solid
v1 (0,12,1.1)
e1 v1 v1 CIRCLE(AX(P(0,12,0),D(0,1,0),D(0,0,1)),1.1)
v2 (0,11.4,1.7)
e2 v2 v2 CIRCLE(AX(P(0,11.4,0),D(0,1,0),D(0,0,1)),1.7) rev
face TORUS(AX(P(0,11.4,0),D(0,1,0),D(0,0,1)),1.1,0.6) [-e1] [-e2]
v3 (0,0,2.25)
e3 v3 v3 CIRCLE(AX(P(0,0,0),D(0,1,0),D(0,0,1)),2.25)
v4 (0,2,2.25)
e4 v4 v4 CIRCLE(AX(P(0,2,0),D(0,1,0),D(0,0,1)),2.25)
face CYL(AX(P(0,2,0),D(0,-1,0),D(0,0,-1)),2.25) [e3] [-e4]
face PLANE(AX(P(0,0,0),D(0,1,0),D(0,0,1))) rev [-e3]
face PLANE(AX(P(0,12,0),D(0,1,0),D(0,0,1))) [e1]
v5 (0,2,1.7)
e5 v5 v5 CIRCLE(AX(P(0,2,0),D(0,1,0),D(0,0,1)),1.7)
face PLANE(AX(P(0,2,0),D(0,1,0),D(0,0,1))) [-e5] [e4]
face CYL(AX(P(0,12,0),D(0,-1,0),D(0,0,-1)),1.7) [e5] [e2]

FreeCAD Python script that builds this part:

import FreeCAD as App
import Part
import Sketcher
from FreeCAD import Vector
Q = App.Units.Quantity


def edges_at(feature, points):
    """Names of the edges that pass closest to the given points."""
    edges = feature.Shape.Edges
    near = lambda p: min(range(len(edges)), key=lambda i: edges[i].distToShape(Part.Vertex(*p))[0])
    return sorted({f"Edge{near(p) + 1}" for p in points})

doc = App.newDocument("Part")
params = doc.addObject("Spreadsheet::Sheet", "Params")
for row, (alias, value) in enumerate([
    ("sketch1_diameter", "4.5 mm"),
    ("pad1_length", "2 mm"),
    ("sketch2_diameter", "3.4 mm"),
    ("pad2_length", "10 mm"),
    ("fillet_radius", "0.6 mm"),
], start=1):
    params.set(f"A{row}", alias)
    params.set(f"B{row}", "=" + value)
    params.setAlias(f"B{row}", alias)

body = doc.addObject("PartDesign::Body", "Body")

sketch1 = doc.addObject("Sketcher::SketchObject", "Sketch")
body.addObject(sketch1)
sketch1.AttachmentSupport = (doc.XZ_Plane, [""])
sketch1.MapMode = "FlatFace"
sketch1.addGeometry(Part.Circle(Vector(0, 0, 0), Vector(0, 0, 1), 2.25), False)
sketch1.addConstraint([
    Sketcher.Constraint("Coincident", 0, 3, -1, 1),
    Sketcher.Constraint("Diameter", 0, Q("4.5 mm")),
])
sketch1.setExpression("Constraints[1]", "Params.sketch1_diameter")
pad1 = doc.addObject("PartDesign::Pad", "Pad")
body.addObject(pad1)
pad1.Profile = sketch1
pad1.setExpression("Length", "Params.pad1_length")
pad1.Reversed = True

sketch2 = doc.addObject("Sketcher::SketchObject", "Sketch001")
body.addObject(sketch2)
sketch2.AttachmentSupport = (doc.XZ_Plane, [""])
sketch2.MapMode = "FlatFace"
sketch2.AttachmentOffset = App.Placement(Vector(0, 0, -2), App.Rotation())
sketch2.addGeometry(Part.Circle(Vector(0, 0, 0), Vector(0, 0, 1), 1.7), False)
sketch2.addConstraint([
    Sketcher.Constraint("Coincident", 0, 3, -1, 1),
    Sketcher.Constraint("Diameter", 0, Q("3.4 mm")),
])
sketch2.setExpression("Constraints[1]", "Params.sketch2_diameter")
pad2 = doc.addObject("PartDesign::Pad", "Pad001")
body.addObject(pad2)
pad2.Profile = sketch2
pad2.setExpression("Length", "Params.pad2_length")
pad2.Reversed = True
doc.recompute()

fillet = doc.addObject("PartDesign::Fillet", "Fillet")
body.addObject(fillet)
fillet.Base = (pad2, edges_at(pad2, [(0, 12, -1.7)]))
fillet.setExpression("Radius", "Params.fillet_radius")

doc.recompute()
